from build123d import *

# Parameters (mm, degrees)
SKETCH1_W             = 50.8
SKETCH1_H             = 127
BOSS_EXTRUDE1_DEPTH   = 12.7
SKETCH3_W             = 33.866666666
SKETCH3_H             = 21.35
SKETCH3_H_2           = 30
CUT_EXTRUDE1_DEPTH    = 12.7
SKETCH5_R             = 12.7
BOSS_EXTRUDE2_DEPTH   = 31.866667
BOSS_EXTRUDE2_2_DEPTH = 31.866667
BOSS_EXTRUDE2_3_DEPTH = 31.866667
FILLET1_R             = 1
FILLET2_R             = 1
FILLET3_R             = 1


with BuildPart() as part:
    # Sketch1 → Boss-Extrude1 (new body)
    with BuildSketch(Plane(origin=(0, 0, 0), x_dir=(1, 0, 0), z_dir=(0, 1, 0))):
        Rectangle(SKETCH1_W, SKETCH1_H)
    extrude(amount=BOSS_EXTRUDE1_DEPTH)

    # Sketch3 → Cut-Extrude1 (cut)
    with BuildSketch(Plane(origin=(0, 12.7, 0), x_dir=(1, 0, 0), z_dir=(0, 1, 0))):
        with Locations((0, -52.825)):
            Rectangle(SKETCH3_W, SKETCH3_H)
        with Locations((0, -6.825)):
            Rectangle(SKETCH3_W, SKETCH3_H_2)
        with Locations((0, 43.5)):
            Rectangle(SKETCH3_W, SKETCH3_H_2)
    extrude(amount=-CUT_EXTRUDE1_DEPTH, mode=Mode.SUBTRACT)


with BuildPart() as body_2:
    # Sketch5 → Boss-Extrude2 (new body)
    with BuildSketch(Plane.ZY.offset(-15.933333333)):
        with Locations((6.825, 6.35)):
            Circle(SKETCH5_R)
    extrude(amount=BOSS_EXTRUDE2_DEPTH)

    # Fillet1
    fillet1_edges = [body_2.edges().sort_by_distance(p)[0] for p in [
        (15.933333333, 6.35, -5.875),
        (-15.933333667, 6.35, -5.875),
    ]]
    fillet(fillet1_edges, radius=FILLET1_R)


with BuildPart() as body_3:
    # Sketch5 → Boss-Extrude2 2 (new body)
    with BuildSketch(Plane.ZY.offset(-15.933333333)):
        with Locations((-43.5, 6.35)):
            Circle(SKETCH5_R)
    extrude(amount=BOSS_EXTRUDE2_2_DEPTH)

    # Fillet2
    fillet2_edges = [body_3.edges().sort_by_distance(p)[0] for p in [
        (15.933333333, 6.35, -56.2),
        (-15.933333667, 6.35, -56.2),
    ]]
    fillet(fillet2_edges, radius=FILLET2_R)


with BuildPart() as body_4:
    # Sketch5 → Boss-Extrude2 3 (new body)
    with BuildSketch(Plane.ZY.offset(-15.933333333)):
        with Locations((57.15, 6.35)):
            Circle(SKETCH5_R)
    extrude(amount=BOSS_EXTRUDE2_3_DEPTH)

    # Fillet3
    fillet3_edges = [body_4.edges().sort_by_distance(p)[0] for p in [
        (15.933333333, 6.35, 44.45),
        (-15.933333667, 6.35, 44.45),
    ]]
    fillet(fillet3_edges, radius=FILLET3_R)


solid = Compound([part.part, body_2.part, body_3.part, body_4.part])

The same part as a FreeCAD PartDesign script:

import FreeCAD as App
import Part
import Sketcher
Q = App.Units.Quantity


def edges_at(feature, points):
    """Names of the edges that pass closest to the given points."""
    edges = feature.Shape.Edges
    near = lambda p: min(range(len(edges)), key=lambda i: edges[i].distToShape(Part.Vertex(*p))[0])
    return sorted({f"Edge{near(p) + 1}" for p in points})


def add_polygon(sketch, points):
    """Adds a closed chain of lines whose ends are joined by coincident constraints."""
    first, n = sketch.GeometryCount, len(points)
    for a, b in zip(points, points[1:] + points[:1]):
        sketch.addGeometry(Part.LineSegment(App.Vector(*a, 0), App.Vector(*b, 0)), False)
    for i in range(n):
        sketch.addConstraint(Sketcher.Constraint("Coincident", first + i, 2, first + (i + 1) % n, 1))

doc = App.newDocument("Part")
params = doc.addObject("Spreadsheet::Sheet", "Params")
for row, (alias, value) in enumerate([
    ("sketch1_width", "2 in"),
    ("sketch1_height", "5 in"),
    ("pad1_length", "0.5 in"),
    ("pocket1_length", "0.5 in"),
    ("sketch3_diameter", "1 in"),
    ("pad2_length", "31.866667 mm"),
    ("fillet_radius", "1 mm"),
    ("sketch4_diameter", "1 in"),
    ("pad3_length", "31.866667 mm"),
    ("fillet2_radius", "1 mm"),
    ("sketch5_diameter", "1 in"),
    ("pad4_length", "31.866667 mm"),
    ("fillet3_radius", "1 mm"),
], start=1):
    params.set(f"A{row}", alias)
    params.set(f"B{row}", "=" + value)
    params.setAlias(f"B{row}", alias)

body = doc.addObject("PartDesign::Body", "Body")

# Sketch on XZ plane
sketch1 = doc.addObject("Sketcher::SketchObject", "Sketch")
body.addObject(sketch1)
sketch1.AttachmentSupport = (doc.XZ_Plane, [""])
sketch1.MapMode = "FlatFace"
add_polygon(sketch1, [(-25.4, -63.5), (-25.4, 63.5), (25.4, 63.5), (25.4, -63.5)])  # lines 0-3
sketch1.addConstraint([
    Sketcher.Constraint("Vertical", 0),
    Sketcher.Constraint("Horizontal", 1),
    Sketcher.Constraint("Vertical", 2),
    Sketcher.Constraint("Horizontal", 3),
    Sketcher.Constraint("Symmetric", 0, 2, 2, 2, -1, 1),
    Sketcher.Constraint("DistanceX", 1, 1, 1, 2, Q("2 in")),
    Sketcher.Constraint("DistanceY", 0, 1, 0, 2, Q("5 in")),
])
sketch1.setExpression("Constraints[9]", "Params.sketch1_width")
sketch1.setExpression("Constraints[10]", "Params.sketch1_height")
pad1 = doc.addObject("PartDesign::Pad", "Pad")
body.addObject(pad1)
pad1.Profile = sketch1
pad1.setExpression("Length", "Params.pad1_length")
pad1.Reversed = True

# Sketch on XZ plane
sketch2 = doc.addObject("Sketcher::SketchObject", "Sketch001")
body.addObject(sketch2)
sketch2.AttachmentSupport = (doc.XZ_Plane, [""])
sketch2.MapMode = "FlatFace"
sketch2.AttachmentOffset = App.Placement(App.Vector(0, 0, -0.5 * 25.4), App.Rotation())
add_polygon(sketch2, [(-16.933333, 42.15), (-16.933333, 63.5), (16.933333, 63.5), (16.933333, 42.15)])  # lines 0-3
add_polygon(sketch2, [(-16.933333, -8.175), (-16.933333, 21.825), (16.933333, 21.825), (16.933333, -8.175)])  # lines 4-7
add_polygon(sketch2, [(-16.933333, -58.5), (-16.933333, -28.5), (16.933333, -28.5), (16.933333, -58.5)])  # lines 8-11
sketch2.addConstraint([
    Sketcher.Constraint("Vertical", 0),
    Sketcher.Constraint("Horizontal", 1),
    Sketcher.Constraint("Vertical", 2),
    Sketcher.Constraint("Horizontal", 3),
    Sketcher.Constraint("Vertical", 4),
    Sketcher.Constraint("Horizontal", 5),
    Sketcher.Constraint("Vertical", 6),
    Sketcher.Constraint("Horizontal", 7),
    Sketcher.Constraint("Vertical", 8),
    Sketcher.Constraint("Horizontal", 9),
    Sketcher.Constraint("Vertical", 10),
    Sketcher.Constraint("Horizontal", 11),
    Sketcher.Constraint("Vertical", 3, 2, 4, 2),
    Sketcher.Constraint("Vertical", 2, 2, 5, 2),
    Sketcher.Constraint("Vertical", 7, 2, 8, 2),
    Sketcher.Constraint("Vertical", 6, 2, 9, 2),
    Sketcher.Constraint("Equal", 6, 8),
    Sketcher.Constraint("DistanceY", -1, 1, 0, 2, Q("2.5 in")),
    Sketcher.Constraint("DistanceY", 0, 1, 0, 2, Q("21.35 mm")),
    Sketcher.Constraint("DistanceY", 4, 1, 4, 2, Q("30 mm")),
    Sketcher.Constraint("DistanceY", -1, 1, 4, 2, Q("21.825 mm")),
    Sketcher.Constraint("DistanceY", 8, 2, -1, 1, Q("28.5 mm")),
    Sketcher.Constraint("DistanceX", 1, 1, 1, 2, Q("33.866667 mm")),
    Sketcher.Constraint("DistanceX", 0, 2, -1, 1, Q("16.933333 mm")),
])
pocket1 = doc.addObject("PartDesign::Pocket", "Pocket")
body.addObject(pocket1)
pocket1.Profile = sketch2
pocket1.setExpression("Length", "Params.pocket1_length")
pocket1.Reversed = True
body2 = doc.addObject("PartDesign::Body", "Body001")

# Sketch on YZ plane
sketch3 = doc.addObject("Sketcher::SketchObject", "Sketch002")
body2.addObject(sketch3)
sketch3.AttachmentSupport = (doc.getObject("YZ_Plane001"), [""])
sketch3.MapMode = "FlatFace"
sketch3.AttachmentOffset = App.Placement(App.Vector(0, 0, 15.933333), App.Rotation())
sketch3.addGeometry(Part.Circle(App.Vector(6.35, 6.825, 0), App.Vector(0, 0, 1), 12.7), False)
sketch3.addConstraint([
    Sketcher.Constraint("Diameter", 0, Q("1 in")),
    Sketcher.Constraint("DistanceX", -1, 1, 0, 3, Q("0.25 in")),
    Sketcher.Constraint("DistanceY", -1, 1, 0, 3, Q("6.825 mm")),
])
sketch3.setExpression("Constraints[0]", "Params.sketch3_diameter")
pad2 = doc.addObject("PartDesign::Pad", "Pad001")
body2.addObject(pad2)
pad2.Profile = sketch3
pad2.setExpression("Length", "Params.pad2_length")
pad2.Reversed = True
doc.recompute()

fillet = doc.addObject("PartDesign::Fillet", "Fillet")
body2.addObject(fillet)
fillet.Base = (pad2, edges_at(pad2, [(15.933, 6.35, -5.875), (-15.933, 6.35, -5.875)]))
fillet.setExpression("Radius", "Params.fillet_radius")
body3 = doc.addObject("PartDesign::Body", "Body002")

# Sketch on YZ plane
sketch4 = doc.addObject("Sketcher::SketchObject", "Sketch003")
body3.addObject(sketch4)
sketch4.AttachmentSupport = (doc.getObject("YZ_Plane002"), [""])
sketch4.MapMode = "FlatFace"
sketch4.AttachmentOffset = App.Placement(App.Vector(0, 0, 15.933333), App.Rotation())
sketch4.addGeometry(Part.Circle(App.Vector(6.35, -43.5, 0), App.Vector(0, 0, 1), 12.7), False)
sketch4.addConstraint([
    Sketcher.Constraint("Diameter", 0, Q("1 in")),
    Sketcher.Constraint("DistanceX", -1, 1, 0, 3, Q("0.25 in")),
    Sketcher.Constraint("DistanceY", 0, 3, -1, 1, Q("43.5 mm")),
])
sketch4.setExpression("Constraints[0]", "Params.sketch4_diameter")
pad3 = doc.addObject("PartDesign::Pad", "Pad002")
body3.addObject(pad3)
pad3.Profile = sketch4
pad3.setExpression("Length", "Params.pad3_length")
pad3.Reversed = True
doc.recompute()

fillet2 = doc.addObject("PartDesign::Fillet", "Fillet001")
body3.addObject(fillet2)
fillet2.Base = (pad3, edges_at(pad3, [(15.933, 6.35, -56.2), (-15.933, 6.35, -56.2)]))
fillet2.setExpression("Radius", "Params.fillet2_radius")
body4 = doc.addObject("PartDesign::Body", "Body003")

# Sketch on YZ plane
sketch5 = doc.addObject("Sketcher::SketchObject", "Sketch004")
body4.addObject(sketch5)
sketch5.AttachmentSupport = (doc.getObject("YZ_Plane003"), [""])
sketch5.MapMode = "FlatFace"
sketch5.AttachmentOffset = App.Placement(App.Vector(0, 0, 15.933333), App.Rotation())
sketch5.addGeometry(Part.Circle(App.Vector(6.35, 57.15, 0), App.Vector(0, 0, 1), 12.7), False)
sketch5.addConstraint([
    Sketcher.Constraint("Diameter", 0, Q("1 in")),
    Sketcher.Constraint("DistanceX", -1, 1, 0, 3, Q("0.25 in")),
    Sketcher.Constraint("DistanceY", -1, 1, 0, 3, Q("2.25 in")),
])
sketch5.setExpression("Constraints[0]", "Params.sketch5_diameter")
pad4 = doc.addObject("PartDesign::Pad", "Pad003")
body4.addObject(pad4)
pad4.Profile = sketch5
pad4.setExpression("Length", "Params.pad4_length")
pad4.Reversed = True
doc.recompute()

fillet3 = doc.addObject("PartDesign::Fillet", "Fillet002")
body4.addObject(fillet3)
fillet3.Base = (pad4, edges_at(pad4, [(15.933, 6.35, 44.45), (-15.933, 6.35, 44.45)]))
fillet3.setExpression("Radius", "Params.fillet3_radius")

doc.recompute()
